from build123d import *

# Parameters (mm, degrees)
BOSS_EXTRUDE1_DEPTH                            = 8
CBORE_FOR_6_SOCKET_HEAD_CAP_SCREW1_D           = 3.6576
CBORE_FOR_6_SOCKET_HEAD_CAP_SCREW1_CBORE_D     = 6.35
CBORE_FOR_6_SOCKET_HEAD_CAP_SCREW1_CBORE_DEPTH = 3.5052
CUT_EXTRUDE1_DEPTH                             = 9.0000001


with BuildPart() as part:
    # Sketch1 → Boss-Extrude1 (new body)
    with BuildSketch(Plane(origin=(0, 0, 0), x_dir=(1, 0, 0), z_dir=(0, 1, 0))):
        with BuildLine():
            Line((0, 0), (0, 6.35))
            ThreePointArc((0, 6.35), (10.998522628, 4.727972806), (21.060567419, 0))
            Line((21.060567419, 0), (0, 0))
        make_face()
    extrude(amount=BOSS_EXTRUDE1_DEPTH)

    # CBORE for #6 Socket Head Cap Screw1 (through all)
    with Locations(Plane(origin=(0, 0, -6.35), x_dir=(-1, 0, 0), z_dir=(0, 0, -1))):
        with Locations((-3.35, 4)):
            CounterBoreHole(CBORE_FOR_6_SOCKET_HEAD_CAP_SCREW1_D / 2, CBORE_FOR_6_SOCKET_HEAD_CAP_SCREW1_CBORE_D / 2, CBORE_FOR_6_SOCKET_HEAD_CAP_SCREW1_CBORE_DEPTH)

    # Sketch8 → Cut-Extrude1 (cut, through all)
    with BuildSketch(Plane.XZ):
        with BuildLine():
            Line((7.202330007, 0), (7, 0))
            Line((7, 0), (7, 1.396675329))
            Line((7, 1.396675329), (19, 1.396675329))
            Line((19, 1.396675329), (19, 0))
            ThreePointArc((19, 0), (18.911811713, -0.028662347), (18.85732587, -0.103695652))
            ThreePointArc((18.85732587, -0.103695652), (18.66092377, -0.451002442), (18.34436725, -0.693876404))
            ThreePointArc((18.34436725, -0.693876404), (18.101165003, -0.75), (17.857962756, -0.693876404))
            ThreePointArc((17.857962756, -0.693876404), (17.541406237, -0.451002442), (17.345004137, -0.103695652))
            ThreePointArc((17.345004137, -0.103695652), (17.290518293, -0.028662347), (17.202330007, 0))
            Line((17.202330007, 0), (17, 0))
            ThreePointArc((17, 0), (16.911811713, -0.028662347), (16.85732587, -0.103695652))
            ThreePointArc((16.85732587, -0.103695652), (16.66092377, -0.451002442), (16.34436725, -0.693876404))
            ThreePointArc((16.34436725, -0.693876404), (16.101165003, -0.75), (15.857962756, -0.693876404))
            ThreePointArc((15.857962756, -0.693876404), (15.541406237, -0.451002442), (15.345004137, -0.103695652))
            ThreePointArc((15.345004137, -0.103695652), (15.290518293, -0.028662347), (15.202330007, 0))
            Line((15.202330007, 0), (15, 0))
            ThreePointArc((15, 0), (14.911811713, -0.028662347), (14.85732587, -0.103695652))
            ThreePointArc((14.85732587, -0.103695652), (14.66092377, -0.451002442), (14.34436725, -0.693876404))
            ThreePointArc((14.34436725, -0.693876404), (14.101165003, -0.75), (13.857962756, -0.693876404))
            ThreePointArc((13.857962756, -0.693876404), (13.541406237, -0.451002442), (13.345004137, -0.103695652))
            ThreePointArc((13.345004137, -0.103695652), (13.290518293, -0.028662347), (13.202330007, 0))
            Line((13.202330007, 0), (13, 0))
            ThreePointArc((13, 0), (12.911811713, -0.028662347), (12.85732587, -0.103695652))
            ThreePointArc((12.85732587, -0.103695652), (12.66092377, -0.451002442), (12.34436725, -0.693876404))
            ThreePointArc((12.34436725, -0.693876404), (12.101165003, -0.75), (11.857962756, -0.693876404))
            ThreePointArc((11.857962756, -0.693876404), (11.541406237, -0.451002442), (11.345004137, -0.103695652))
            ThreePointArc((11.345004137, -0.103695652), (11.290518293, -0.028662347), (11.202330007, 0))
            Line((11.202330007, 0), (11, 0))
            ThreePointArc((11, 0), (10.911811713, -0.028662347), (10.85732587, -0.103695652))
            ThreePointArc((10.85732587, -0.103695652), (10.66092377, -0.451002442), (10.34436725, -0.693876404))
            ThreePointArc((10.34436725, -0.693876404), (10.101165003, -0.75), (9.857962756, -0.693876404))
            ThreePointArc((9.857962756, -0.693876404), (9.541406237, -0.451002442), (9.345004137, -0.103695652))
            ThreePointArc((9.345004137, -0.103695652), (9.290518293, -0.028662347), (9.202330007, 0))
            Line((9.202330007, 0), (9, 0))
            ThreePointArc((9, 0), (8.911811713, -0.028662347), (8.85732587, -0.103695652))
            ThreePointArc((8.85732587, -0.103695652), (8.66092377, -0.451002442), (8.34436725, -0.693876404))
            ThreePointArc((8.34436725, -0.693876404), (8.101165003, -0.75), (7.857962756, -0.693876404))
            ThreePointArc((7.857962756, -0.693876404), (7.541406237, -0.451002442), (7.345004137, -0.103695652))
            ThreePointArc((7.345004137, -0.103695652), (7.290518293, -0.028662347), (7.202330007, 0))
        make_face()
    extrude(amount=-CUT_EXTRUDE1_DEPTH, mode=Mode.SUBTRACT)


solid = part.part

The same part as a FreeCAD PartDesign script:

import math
import FreeCAD as App
import Part
import Sketcher
from FreeCAD import Vector
Q = App.Units.Quantity

doc = App.newDocument("Part")
body = doc.addObject("PartDesign::Body", "Body")

# Sketch on XZ plane
sketch1 = body.newObject("Sketcher::SketchObject", "Sketch")
sketch1.AttachmentSupport = (doc.getObject("XZ_Plane"), [""])
sketch1.MapMode = "FlatFace"
sketch1.addGeometry([
    Part.LineSegment(Vector(0, -6, 0), Vector(0, 0, 0)),
    Part.LineSegment(Vector(0, 0, 0), Vector(21, 0, 0)),
    Part.ArcOfCircle(Part.Circle(Vector(0, 32, 0), Vector(0, 0, 1), 38), math.radians(-90), math.radians(-56)),
], False)
sketch1.addConstraint([
    Sketcher.Constraint("Coincident", 0, 2, 1, 1),
    Sketcher.Constraint("Coincident", 1, 2, 2, 2),
    Sketcher.Constraint("Coincident", 2, 1, 0, 1),
    Sketcher.Constraint("Vertical", 0),
    Sketcher.Constraint("Horizontal", 1),
    Sketcher.Constraint("Coincident", 0, 2, -1, 1),
    Sketcher.Constraint("PointOnObject", 2, 3, -2),
    Sketcher.Constraint("Radius", 2, Q("38.1 mm")),
    Sketcher.Constraint("DistanceY", 0, 1, 0, 2, Q("6.35 mm")),
])
pad1 = body.newObject("PartDesign::Pad", "Pad")
pad1.Profile = sketch1
pad1.Length = 8
pad1.Reversed = True

# Sketch on XY plane
sketch2 = body.newObject("Sketcher::SketchObject", "Sketch001")
sketch2.AttachmentSupport = (doc.getObject("XY_Plane"), [""])
sketch2.MapMode = "FlatFace"
sketch2.AttachmentOffset = App.Placement(Vector(0, 0, -6.35), App.Rotation())
sketch2.addGeometry(Part.Circle(Vector(3.4, 4, 0), Vector(0, 0, 1), 1.8), False)
sketch2.addConstraint([
    Sketcher.Constraint("DistanceY", -1, 1, 0, 3, Q("4 mm")),
    Sketcher.Constraint("Diameter", 0, Q("3.6576 mm")),
    Sketcher.Constraint("DistanceX", -1, 1, 0, 3, Q("3.35 mm")),
])
doc.recompute()
hole = body.newObject("PartDesign::Hole", "Hole")
hole.Profile = sketch2
hole.ThreadType = "None"
hole.Diameter = 3.6576
hole.DepthType = "ThroughAll"
hole.HoleCutType = "Counterbore"
hole.HoleCutDiameter = 6.35
hole.HoleCutDepth = 3.5052
hole.Reversed = True

# Sketch on XZ plane
sketch3 = body.newObject("Sketcher::SketchObject", "Sketch002")
sketch3.AttachmentSupport = (doc.getObject("XZ_Plane"), [""])
sketch3.MapMode = "FlatFace"
sketch3.addGeometry([
    Part.LineSegment(Vector(7, 0, 0), Vector(7.2, 0, 0)),  # 0
    Part.ArcOfCircle(Part.Circle(Vector(7.2, -0.15, 0), Vector(0, 0, 1), 0.15), math.radians(18), math.radians(90)),  # 1
    Part.ArcOfCircle(Part.Circle(Vector(8.3, 0.2, 0), Vector(0, 0, 1), 1), math.radians(-162), math.radians(-116)),  # 2
    Part.ArcOfCircle(Part.Circle(Vector(8.1, -0.2, 0), Vector(0, 0, 1), 0.55), math.radians(-116), math.radians(-64)),  # 3
    Part.ArcOfCircle(Part.Circle(Vector(7.91, 0.2, 0), Vector(0, 0, 1), 1), math.radians(-64), math.radians(-18)),  # 4
    Part.ArcOfCircle(Part.Circle(Vector(9, -0.15, 0), Vector(0, 0, 1), 0.15), math.radians(90), math.radians(162)),  # 5
    Part.LineSegment(Vector(9, 0, 0), Vector(9.2, 0, 0)),  # 6
    Part.ArcOfCircle(Part.Circle(Vector(9.2, -0.15, 0), Vector(0, 0, 1), 0.15), math.radians(18), math.radians(90)),  # 7
    Part.ArcOfCircle(Part.Circle(Vector(10.3, 0.2, 0), Vector(0, 0, 1), 1), math.radians(-162), math.radians(-116)),  # 8
    Part.ArcOfCircle(Part.Circle(Vector(10.1, -0.2, 0), Vector(0, 0, 1), 0.55), math.radians(-116), math.radians(-64)),  # 9
    Part.ArcOfCircle(Part.Circle(Vector(9.91, 0.2, 0), Vector(0, 0, 1), 1), math.radians(-64), math.radians(-18)),  # 10
    Part.ArcOfCircle(Part.Circle(Vector(11, -0.15, 0), Vector(0, 0, 1), 0.15), math.radians(90), math.radians(162)),  # 11
    Part.LineSegment(Vector(11, 0, 0), Vector(11.2, 0, 0)),  # 12
    Part.ArcOfCircle(Part.Circle(Vector(11.2, -0.15, 0), Vector(0, 0, 1), 0.15), math.radians(18), math.radians(90)),  # 13
    Part.ArcOfCircle(Part.Circle(Vector(12.3, 0.2, 0), Vector(0, 0, 1), 1), math.radians(-162), math.radians(-116)),  # 14
    Part.ArcOfCircle(Part.Circle(Vector(12.1, -0.2, 0), Vector(0, 0, 1), 0.55), math.radians(-116), math.radians(-64)),  # 15
    Part.ArcOfCircle(Part.Circle(Vector(11.91, 0.2, 0), Vector(0, 0, 1), 1), math.radians(-64), math.radians(-18)),  # 16
    Part.ArcOfCircle(Part.Circle(Vector(13, -0.15, 0), Vector(0, 0, 1), 0.15), math.radians(90), math.radians(162)),  # 17
    Part.LineSegment(Vector(13, 0, 0), Vector(13.2, 0, 0)),  # 18
    Part.ArcOfCircle(Part.Circle(Vector(13.2, -0.15, 0), Vector(0, 0, 1), 0.15), math.radians(18), math.radians(90)),  # 19
    Part.ArcOfCircle(Part.Circle(Vector(14.3, 0.2, 0), Vector(0, 0, 1), 1), math.radians(-162), math.radians(-116)),  # 20
    Part.ArcOfCircle(Part.Circle(Vector(14.1, -0.2, 0), Vector(0, 0, 1), 0.55), math.radians(-116), math.radians(-64)),  # 21
    Part.ArcOfCircle(Part.Circle(Vector(13.91, 0.2, 0), Vector(0, 0, 1), 1), math.radians(-64), math.radians(-18)),  # 22
    Part.ArcOfCircle(Part.Circle(Vector(15, -0.15, 0), Vector(0, 0, 1), 0.15), math.radians(90), math.radians(162)),  # 23
    Part.LineSegment(Vector(15, 0, 0), Vector(15.2, 0, 0)),  # 24
    Part.ArcOfCircle(Part.Circle(Vector(15.2, -0.15, 0), Vector(0, 0, 1), 0.15), math.radians(18), math.radians(90)),  # 25
    Part.ArcOfCircle(Part.Circle(Vector(16.3, 0.2, 0), Vector(0, 0, 1), 1), math.radians(-162), math.radians(-116)),  # 26
    Part.ArcOfCircle(Part.Circle(Vector(16.1, -0.2, 0), Vector(0, 0, 1), 0.55), math.radians(-116), math.radians(-64)),  # 27
    Part.ArcOfCircle(Part.Circle(Vector(15.91, 0.2, 0), Vector(0, 0, 1), 1), math.radians(-64), math.radians(-18)),  # 28
    Part.ArcOfCircle(Part.Circle(Vector(17, -0.15, 0), Vector(0, 0, 1), 0.15), math.radians(90), math.radians(162)),  # 29
    Part.LineSegment(Vector(17, 0, 0), Vector(17.2, 0, 0)),  # 30
    Part.ArcOfCircle(Part.Circle(Vector(17.2, -0.15, 0), Vector(0, 0, 1), 0.15), math.radians(18), math.radians(90)),  # 31
    Part.ArcOfCircle(Part.Circle(Vector(18.3, 0.2, 0), Vector(0, 0, 1), 1), math.radians(-162), math.radians(-116)),  # 32
    Part.ArcOfCircle(Part.Circle(Vector(18.1, -0.2, 0), Vector(0, 0, 1), 0.55), math.radians(-116), math.radians(-64)),  # 33
    Part.ArcOfCircle(Part.Circle(Vector(17.91, 0.2, 0), Vector(0, 0, 1), 1), math.radians(-64), math.radians(-18)),  # 34
    Part.ArcOfCircle(Part.Circle(Vector(19, -0.15, 0), Vector(0, 0, 1), 0.15), math.radians(90), math.radians(162)),  # 35
    Part.LineSegment(Vector(19, 0, 0), Vector(19, 1.4, 0)),  # 36
    Part.LineSegment(Vector(19, 1.4, 0), Vector(7, 1.4, 0)),  # 37
    Part.LineSegment(Vector(7, 1.4, 0), Vector(7, 0, 0)),  # 38
], False)
sketch3.addConstraint([
    Sketcher.Constraint("Tangent", 0, 2, 1, 2),
    Sketcher.Constraint("Tangent", 1, 1, 2, 1),
    Sketcher.Constraint("Tangent", 2, 2, 3, 1),
    Sketcher.Constraint("Tangent", 3, 2, 4, 1),
    Sketcher.Constraint("Tangent", 4, 2, 5, 2),
    Sketcher.Constraint("Tangent", 5, 1, 6, 1),
    Sketcher.Constraint("Tangent", 6, 2, 7, 2),
    Sketcher.Constraint("Tangent", 7, 1, 8, 1),
    Sketcher.Constraint("Tangent", 8, 2, 9, 1),
    Sketcher.Constraint("Tangent", 9, 2, 10, 1),
    Sketcher.Constraint("Tangent", 10, 2, 11, 2),
    Sketcher.Constraint("Tangent", 11, 1, 12, 1),
    Sketcher.Constraint("Tangent", 12, 2, 13, 2),
    Sketcher.Constraint("Tangent", 13, 1, 14, 1),
    Sketcher.Constraint("Tangent", 14, 2, 15, 1),
    Sketcher.Constraint("Tangent", 15, 2, 16, 1),
    Sketcher.Constraint("Tangent", 16, 2, 17, 2),
    Sketcher.Constraint("Tangent", 17, 1, 18, 1),
    Sketcher.Constraint("Tangent", 18, 2, 19, 2),
    Sketcher.Constraint("Tangent", 19, 1, 20, 1),
    Sketcher.Constraint("Tangent", 20, 2, 21, 1),
    Sketcher.Constraint("Tangent", 21, 2, 22, 1),
    Sketcher.Constraint("Tangent", 22, 2, 23, 2),
    Sketcher.Constraint("Tangent", 23, 1, 24, 1),
    Sketcher.Constraint("Tangent", 24, 2, 25, 2),
    Sketcher.Constraint("Tangent", 25, 1, 26, 1),
    Sketcher.Constraint("Tangent", 26, 2, 27, 1),
    Sketcher.Constraint("Tangent", 27, 2, 28, 1),
    Sketcher.Constraint("Tangent", 28, 2, 29, 2),
    Sketcher.Constraint("Tangent", 29, 1, 30, 1),
    Sketcher.Constraint("Tangent", 30, 2, 31, 2),
    Sketcher.Constraint("Tangent", 31, 1, 32, 1),
    Sketcher.Constraint("Tangent", 32, 2, 33, 1),
    Sketcher.Constraint("Tangent", 33, 2, 34, 1),
    Sketcher.Constraint("Tangent", 34, 2, 35, 2),
    Sketcher.Constraint("Coincident", 35, 1, 36, 1),
    Sketcher.Constraint("Coincident", 36, 2, 37, 1),
    Sketcher.Constraint("Coincident", 37, 2, 38, 1),
    Sketcher.Constraint("Coincident", 38, 2, 0, 1),
    Sketcher.Constraint("Horizontal", 0),
    Sketcher.Constraint("Horizontal", 6),
    Sketcher.Constraint("Horizontal", 12),
    Sketcher.Constraint("Horizontal", 18),
    Sketcher.Constraint("Horizontal", 24),
    Sketcher.Constraint("Horizontal", 30),
    Sketcher.Constraint("Vertical", 36),
    Sketcher.Constraint("Horizontal", 37),
    Sketcher.Constraint("Vertical", 38),
    Sketcher.Constraint("Equal", 2, 4),
    Sketcher.Constraint("Equal", 1, 5),
    Sketcher.Constraint("Equal", 5, 7),
    Sketcher.Constraint("Equal", 4, 8),
    Sketcher.Constraint("Equal", 3, 9),
    Sketcher.Constraint("Equal", 8, 10),
    Sketcher.Constraint("Equal", 7, 11),
    Sketcher.Constraint("Equal", 11, 13),
    Sketcher.Constraint("Equal", 10, 14),
    Sketcher.Constraint("Equal", 9, 15),
    Sketcher.Constraint("Equal", 14, 16),
    Sketcher.Constraint("Equal", 13, 17),
    Sketcher.Constraint("Equal", 17, 19),
    Sketcher.Constraint("Equal", 16, 20),
    Sketcher.Constraint("Equal", 15, 21),
    Sketcher.Constraint("Equal", 20, 22),
    Sketcher.Constraint("Equal", 19, 23),
    Sketcher.Constraint("Equal", 23, 25),
    Sketcher.Constraint("Equal", 22, 26),
    Sketcher.Constraint("Equal", 21, 27),
    Sketcher.Constraint("Equal", 26, 28),
    Sketcher.Constraint("Equal", 25, 29),
    Sketcher.Constraint("Equal", 29, 31),
    Sketcher.Constraint("Equal", 28, 32),
    Sketcher.Constraint("Equal", 27, 33),
    Sketcher.Constraint("Equal", 32, 34),
    Sketcher.Constraint("Equal", 31, 35),
    Sketcher.Constraint("PointOnObject", 0, 2, -1),
    Sketcher.Constraint("PointOnObject", 5, 1, -1),
    Sketcher.Constraint("PointOnObject", 11, 1, -1),
    Sketcher.Constraint("PointOnObject", 17, 1, -1),
    Sketcher.Constraint("PointOnObject", 23, 1, -1),
    Sketcher.Constraint("PointOnObject", 29, 1, -1),
    Sketcher.Constraint("PointOnObject", 35, 1, -1),
    Sketcher.Constraint("Horizontal", 2, 3, 4, 3),
    Sketcher.Constraint("Horizontal", 4, 3, 8, 3),
    Sketcher.Constraint("Horizontal", 3, 3, 9, 3),
    Sketcher.Constraint("Horizontal", 8, 3, 10, 3),
    Sketcher.Constraint("Horizontal", 10, 3, 14, 3),
    Sketcher.Constraint("Horizontal", 9, 3, 15, 3),
    Sketcher.Constraint("Horizontal", 14, 3, 16, 3),
    Sketcher.Constraint("Horizontal", 16, 3, 20, 3),
    Sketcher.Constraint("Horizontal", 15, 3, 21, 3),
    Sketcher.Constraint("Horizontal", 20, 3, 22, 3),
    Sketcher.Constraint("Horizontal", 22, 3, 26, 3),
    Sketcher.Constraint("Horizontal", 21, 3, 27, 3),
    Sketcher.Constraint("Horizontal", 26, 3, 28, 3),
    Sketcher.Constraint("Horizontal", 28, 3, 32, 3),
    Sketcher.Constraint("Horizontal", 27, 3, 33, 3),
    Sketcher.Constraint("Horizontal", 32, 3, 34, 3),
    Sketcher.Constraint("Equal", 0, 6),
    Sketcher.Constraint("Equal", 6, 12),
    Sketcher.Constraint("Equal", 12, 18),
    Sketcher.Constraint("Equal", 18, 24),
    Sketcher.Constraint("Equal", 24, 30),
    Sketcher.Constraint("Radius", 2, Q("1 mm")),
    Sketcher.Constraint("DistanceX", 37, 2, 37, 1, Q("12 mm")),
    Sketcher.Constraint("Radius", 1, Q("0.15 mm")),
    Sketcher.Constraint("DistanceX", -1, 1, 5, 3, Q("9 mm")),
    Sketcher.Constraint("DistanceX", -1, 1, 11, 3, Q("11 mm")),
    Sketcher.Constraint("Radius", 3, Q("0.555 mm")),
    Sketcher.Constraint("DistanceY", -1, 1, 2, 3, Q("0.205 mm")),
    Sketcher.Constraint("DistanceY", 3, 3, -1, 1, Q("0.195 mm")),
    Sketcher.Constraint("DistanceY", 36, 1, 36, 2, Q("1.396675 mm")),
])
pocket1 = body.newObject("PartDesign::Pocket", "Pocket")
pocket1.Profile = sketch3
pocket1.Type = "ThroughAll"

doc.recompute()
